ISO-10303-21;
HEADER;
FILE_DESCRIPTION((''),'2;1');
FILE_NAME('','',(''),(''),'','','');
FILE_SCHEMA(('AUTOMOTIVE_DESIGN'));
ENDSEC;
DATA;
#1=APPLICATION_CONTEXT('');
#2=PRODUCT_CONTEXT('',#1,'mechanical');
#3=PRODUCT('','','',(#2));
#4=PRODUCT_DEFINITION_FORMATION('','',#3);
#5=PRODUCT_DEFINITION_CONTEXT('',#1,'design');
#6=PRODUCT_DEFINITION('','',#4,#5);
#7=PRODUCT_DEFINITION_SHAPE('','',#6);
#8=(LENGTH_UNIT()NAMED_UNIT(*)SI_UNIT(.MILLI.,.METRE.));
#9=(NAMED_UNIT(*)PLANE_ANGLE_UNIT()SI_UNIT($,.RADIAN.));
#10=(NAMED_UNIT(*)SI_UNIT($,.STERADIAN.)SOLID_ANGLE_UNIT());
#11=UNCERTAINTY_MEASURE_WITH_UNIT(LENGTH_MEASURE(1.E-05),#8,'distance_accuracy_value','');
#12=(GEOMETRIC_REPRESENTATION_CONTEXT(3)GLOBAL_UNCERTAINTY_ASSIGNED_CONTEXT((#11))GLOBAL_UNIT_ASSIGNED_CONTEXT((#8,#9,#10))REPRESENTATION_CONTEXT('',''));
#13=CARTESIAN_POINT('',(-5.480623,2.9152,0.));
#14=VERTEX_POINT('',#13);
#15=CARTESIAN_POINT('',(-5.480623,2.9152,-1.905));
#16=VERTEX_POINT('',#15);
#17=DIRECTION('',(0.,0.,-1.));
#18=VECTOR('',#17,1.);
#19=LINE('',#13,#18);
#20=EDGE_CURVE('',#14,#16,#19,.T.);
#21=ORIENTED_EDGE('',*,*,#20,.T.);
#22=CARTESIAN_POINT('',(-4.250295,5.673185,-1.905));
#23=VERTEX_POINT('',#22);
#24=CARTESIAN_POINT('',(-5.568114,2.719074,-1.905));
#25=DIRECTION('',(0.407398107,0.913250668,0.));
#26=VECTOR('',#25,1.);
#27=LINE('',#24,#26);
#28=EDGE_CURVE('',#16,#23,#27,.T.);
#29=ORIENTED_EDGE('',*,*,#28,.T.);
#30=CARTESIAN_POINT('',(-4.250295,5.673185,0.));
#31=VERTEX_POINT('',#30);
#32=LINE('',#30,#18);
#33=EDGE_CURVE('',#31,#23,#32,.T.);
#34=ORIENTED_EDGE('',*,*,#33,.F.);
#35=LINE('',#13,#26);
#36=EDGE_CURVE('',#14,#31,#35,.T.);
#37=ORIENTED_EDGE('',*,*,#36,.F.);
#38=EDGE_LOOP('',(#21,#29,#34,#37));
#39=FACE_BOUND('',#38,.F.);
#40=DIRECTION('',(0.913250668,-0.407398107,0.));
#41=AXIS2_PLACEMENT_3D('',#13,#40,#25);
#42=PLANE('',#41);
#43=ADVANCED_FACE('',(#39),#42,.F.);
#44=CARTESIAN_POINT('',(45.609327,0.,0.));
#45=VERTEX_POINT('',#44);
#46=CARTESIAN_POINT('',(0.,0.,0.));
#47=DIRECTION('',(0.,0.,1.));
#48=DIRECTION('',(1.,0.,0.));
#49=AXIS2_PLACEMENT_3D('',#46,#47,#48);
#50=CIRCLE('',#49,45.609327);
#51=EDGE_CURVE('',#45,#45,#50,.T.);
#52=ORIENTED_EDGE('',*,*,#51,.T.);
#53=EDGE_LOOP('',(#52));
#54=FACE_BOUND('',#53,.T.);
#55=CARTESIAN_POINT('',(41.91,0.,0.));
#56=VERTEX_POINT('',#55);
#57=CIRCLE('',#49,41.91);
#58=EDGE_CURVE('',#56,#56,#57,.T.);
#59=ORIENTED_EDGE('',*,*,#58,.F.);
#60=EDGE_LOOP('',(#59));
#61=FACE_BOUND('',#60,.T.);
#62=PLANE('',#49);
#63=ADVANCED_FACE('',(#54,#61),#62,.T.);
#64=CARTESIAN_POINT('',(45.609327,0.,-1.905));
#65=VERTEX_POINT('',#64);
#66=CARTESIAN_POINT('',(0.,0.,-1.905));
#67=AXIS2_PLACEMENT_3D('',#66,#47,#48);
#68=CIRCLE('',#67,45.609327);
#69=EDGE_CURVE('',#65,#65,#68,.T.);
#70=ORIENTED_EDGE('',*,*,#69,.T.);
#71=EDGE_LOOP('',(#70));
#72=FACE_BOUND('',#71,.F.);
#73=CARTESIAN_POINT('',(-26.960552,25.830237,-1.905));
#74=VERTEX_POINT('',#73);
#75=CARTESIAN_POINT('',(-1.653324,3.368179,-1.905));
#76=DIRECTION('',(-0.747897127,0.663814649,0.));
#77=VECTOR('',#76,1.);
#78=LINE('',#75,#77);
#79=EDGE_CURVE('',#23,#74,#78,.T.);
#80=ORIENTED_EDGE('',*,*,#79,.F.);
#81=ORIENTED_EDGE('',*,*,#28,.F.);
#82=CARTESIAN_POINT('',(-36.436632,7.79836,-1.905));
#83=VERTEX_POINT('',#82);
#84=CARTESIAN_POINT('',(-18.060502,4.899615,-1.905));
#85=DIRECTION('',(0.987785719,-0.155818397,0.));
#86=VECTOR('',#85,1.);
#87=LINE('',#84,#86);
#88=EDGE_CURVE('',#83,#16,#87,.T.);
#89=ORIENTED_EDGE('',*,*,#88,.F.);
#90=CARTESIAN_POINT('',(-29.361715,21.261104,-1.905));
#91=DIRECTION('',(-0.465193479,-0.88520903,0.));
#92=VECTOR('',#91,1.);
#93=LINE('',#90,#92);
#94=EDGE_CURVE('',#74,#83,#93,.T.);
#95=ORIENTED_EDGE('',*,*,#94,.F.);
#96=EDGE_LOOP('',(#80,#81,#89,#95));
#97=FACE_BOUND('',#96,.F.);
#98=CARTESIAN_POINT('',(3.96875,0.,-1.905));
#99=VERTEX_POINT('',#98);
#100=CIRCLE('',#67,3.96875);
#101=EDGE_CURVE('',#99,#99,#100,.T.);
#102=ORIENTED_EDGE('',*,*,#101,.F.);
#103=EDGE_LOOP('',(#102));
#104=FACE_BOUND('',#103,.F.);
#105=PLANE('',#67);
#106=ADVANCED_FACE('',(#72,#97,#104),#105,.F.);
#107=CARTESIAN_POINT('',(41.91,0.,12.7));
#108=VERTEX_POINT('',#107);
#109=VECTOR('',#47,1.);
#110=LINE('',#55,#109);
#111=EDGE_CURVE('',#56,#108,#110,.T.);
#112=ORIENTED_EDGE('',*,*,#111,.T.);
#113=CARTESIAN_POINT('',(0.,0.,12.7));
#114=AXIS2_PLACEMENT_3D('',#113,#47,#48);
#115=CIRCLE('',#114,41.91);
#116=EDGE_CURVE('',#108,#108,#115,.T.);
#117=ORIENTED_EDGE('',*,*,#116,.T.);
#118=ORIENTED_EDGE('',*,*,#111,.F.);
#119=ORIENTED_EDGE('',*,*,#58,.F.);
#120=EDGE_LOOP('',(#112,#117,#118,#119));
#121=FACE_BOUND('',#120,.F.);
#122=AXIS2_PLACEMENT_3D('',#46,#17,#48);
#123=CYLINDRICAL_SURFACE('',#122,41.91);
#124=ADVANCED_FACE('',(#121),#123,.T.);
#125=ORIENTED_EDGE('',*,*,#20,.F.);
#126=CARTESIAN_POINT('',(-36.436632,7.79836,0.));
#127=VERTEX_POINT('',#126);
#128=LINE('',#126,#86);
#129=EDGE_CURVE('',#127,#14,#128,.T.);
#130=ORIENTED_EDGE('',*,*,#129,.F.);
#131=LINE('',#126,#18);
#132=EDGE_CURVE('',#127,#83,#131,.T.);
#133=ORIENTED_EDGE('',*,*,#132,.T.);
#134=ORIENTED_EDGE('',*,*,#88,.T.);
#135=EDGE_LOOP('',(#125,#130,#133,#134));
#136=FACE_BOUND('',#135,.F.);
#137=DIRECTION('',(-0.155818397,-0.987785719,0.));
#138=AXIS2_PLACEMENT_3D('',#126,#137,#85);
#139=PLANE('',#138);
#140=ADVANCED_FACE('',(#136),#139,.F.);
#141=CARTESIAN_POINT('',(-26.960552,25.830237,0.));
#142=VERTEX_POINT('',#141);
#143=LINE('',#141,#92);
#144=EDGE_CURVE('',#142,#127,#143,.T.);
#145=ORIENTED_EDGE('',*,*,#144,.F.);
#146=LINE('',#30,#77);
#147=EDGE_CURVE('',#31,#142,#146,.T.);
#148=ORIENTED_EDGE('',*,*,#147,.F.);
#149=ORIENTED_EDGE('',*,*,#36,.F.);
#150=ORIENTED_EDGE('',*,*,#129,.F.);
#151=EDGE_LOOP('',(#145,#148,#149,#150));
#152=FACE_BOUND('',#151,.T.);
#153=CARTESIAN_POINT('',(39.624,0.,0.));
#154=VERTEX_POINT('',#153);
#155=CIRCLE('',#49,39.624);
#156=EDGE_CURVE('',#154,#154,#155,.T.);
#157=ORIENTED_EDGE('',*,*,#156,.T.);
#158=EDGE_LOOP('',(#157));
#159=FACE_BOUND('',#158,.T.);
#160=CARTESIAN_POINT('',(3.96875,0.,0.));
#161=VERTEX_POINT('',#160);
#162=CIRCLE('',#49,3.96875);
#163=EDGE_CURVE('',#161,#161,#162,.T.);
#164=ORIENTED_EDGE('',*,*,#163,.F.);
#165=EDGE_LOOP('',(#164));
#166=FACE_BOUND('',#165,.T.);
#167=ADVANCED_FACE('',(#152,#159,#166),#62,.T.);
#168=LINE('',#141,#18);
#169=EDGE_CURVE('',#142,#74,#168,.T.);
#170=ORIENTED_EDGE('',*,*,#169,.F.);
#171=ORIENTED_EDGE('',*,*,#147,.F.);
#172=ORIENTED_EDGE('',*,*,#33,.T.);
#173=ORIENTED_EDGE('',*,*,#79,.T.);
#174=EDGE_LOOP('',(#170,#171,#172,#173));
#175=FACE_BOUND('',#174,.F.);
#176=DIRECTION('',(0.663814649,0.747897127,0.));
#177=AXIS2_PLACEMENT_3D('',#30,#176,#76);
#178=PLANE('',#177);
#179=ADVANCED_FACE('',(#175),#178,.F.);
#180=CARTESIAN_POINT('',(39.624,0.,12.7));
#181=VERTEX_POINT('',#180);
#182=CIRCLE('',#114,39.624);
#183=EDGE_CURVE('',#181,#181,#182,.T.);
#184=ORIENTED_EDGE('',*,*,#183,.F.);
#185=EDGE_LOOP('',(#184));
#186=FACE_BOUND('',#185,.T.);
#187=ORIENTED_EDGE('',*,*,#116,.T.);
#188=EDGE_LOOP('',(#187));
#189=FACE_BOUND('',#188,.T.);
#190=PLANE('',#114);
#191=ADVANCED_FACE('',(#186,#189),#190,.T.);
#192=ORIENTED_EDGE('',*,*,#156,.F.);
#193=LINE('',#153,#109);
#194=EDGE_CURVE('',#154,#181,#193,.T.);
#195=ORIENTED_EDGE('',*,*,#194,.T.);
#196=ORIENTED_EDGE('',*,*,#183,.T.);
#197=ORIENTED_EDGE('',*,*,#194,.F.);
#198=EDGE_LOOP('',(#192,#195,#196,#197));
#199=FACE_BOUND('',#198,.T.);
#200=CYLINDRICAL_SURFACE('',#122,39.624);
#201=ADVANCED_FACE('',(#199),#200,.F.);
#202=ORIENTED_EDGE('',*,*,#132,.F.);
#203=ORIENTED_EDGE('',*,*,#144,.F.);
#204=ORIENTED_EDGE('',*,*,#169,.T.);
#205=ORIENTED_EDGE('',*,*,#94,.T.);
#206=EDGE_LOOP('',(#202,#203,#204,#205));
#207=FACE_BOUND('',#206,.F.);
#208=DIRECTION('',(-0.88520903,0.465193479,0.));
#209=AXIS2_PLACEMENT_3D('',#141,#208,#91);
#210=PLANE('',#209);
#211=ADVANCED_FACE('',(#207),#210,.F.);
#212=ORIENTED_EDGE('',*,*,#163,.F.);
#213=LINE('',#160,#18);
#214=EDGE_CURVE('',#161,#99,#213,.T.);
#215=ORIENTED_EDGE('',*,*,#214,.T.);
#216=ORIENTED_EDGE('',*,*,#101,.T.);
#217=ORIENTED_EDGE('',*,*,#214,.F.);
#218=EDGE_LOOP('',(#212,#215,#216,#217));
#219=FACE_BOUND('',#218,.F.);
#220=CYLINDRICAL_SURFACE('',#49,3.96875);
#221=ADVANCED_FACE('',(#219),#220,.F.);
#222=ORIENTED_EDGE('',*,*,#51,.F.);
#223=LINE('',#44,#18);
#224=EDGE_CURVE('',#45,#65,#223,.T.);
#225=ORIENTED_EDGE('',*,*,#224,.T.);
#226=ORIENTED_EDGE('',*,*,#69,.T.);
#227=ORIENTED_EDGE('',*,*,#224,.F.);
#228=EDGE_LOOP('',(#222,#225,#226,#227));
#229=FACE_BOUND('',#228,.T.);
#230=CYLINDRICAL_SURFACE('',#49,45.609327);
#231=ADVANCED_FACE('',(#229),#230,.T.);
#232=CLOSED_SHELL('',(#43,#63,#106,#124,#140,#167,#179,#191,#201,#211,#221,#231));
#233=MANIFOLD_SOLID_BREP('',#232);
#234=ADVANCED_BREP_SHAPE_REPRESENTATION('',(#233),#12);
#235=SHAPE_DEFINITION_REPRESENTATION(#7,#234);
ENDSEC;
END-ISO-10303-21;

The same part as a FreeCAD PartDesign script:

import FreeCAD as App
import Part
import Sketcher
from FreeCAD import Vector
Q = App.Units.Quantity


def add_polygon(sketch, points):
    """Adds a closed chain of lines whose ends are joined by coincident constraints."""
    first, n = sketch.GeometryCount, len(points)
    for a, b in zip(points, points[1:] + points[:1]):
        sketch.addGeometry(Part.LineSegment(App.Vector(*a, 0), App.Vector(*b, 0)), False)
    for i in range(n):
        sketch.addConstraint(Sketcher.Constraint("Coincident", first + i, 2, first + (i + 1) % n, 1))

doc = App.newDocument("Part")
body = doc.addObject("PartDesign::Body", "Body")

# Sketch on XY plane
sketch1 = body.newObject("Sketcher::SketchObject", "Sketch")
sketch1.AttachmentSupport = (doc.getObject("XY_Plane"), [""])
sketch1.MapMode = "FlatFace"
sketch1.addGeometry(Part.Circle(Vector(0, 0, 0), Vector(0, 0, 1), 42), False)
sketch1.addGeometry(Part.Circle(Vector(0, 0, 0), Vector(0, 0, 1), 40), False)
sketch1.addConstraint(Sketcher.Constraint("Coincident", 0, 3, -1, 1))
sketch1.addConstraint(Sketcher.Constraint("Coincident", 1, 3, -1, 1))
sketch1.addConstraint(Sketcher.Constraint("Diameter", 0, Q("3.3 in")))
sketch1.addConstraint(Sketcher.Constraint("Diameter", 1, Q("3.12 in")))
pad1 = body.newObject("PartDesign::Pad", "Pad")
pad1.Profile = sketch1
pad1.Length = Q("0.5 in")

# Sketch on XY plane
sketch2 = body.newObject("Sketcher::SketchObject", "Sketch001")
sketch2.AttachmentSupport = (doc.getObject("XY_Plane"), [""])
sketch2.MapMode = "FlatFace"
sketch2.addGeometry(Part.Circle(Vector(0, 0, 0), Vector(0, 0, 1), 46), False)
sketch2.addConstraint(Sketcher.Constraint("Coincident", 0, 3, -1, 1))
sketch2.addConstraint(Sketcher.Constraint("Diameter", 0, 91.218654))
pad2 = body.newObject("PartDesign::Pad", "Pad001")
pad2.Profile = sketch2
pad2.Length = Q("0.075 in")
pad2.Reversed = True

# Sketch on XY plane
sketch3 = body.newObject("Sketcher::SketchObject", "Sketch002")
sketch3.AttachmentSupport = (doc.getObject("XY_Plane"), [""])
sketch3.MapMode = "FlatFace"
sketch3.addGeometry(Part.Circle(Vector(0, 0, 0), Vector(0, 0, 1), 4), False)
sketch3.addConstraint(Sketcher.Constraint("Coincident", 0, 3, -1, 1))
sketch3.addConstraint(Sketcher.Constraint("Diameter", 0, Q("0.3125 in")))
pocket1 = body.newObject("PartDesign::Pocket", "Pocket")
pocket1.Profile = sketch3
pocket1.Length = Q("1 in")

# Sketch on XY plane
sketch4 = body.newObject("Sketcher::SketchObject", "Sketch003")
sketch4.AttachmentSupport = (doc.getObject("XY_Plane"), [""])
sketch4.MapMode = "FlatFace"
add_polygon(sketch4, [(-5.5, 2.9), (-4.3, 5.7), (-27, 25.8), (-36.4, 7.8)])  # lines 0-3
sketch4.addConstraint(Sketcher.Constraint("DistanceY", -1, 1, 3, 2, 2.9152))
sketch4.addConstraint(Sketcher.Constraint("Distance", 2, 20.370191))
sketch4.addConstraint(Sketcher.Constraint("Distance", 3, 31.33879))
sketch4.addConstraint(Sketcher.Constraint("DistanceX", 1, 2, -1, 1, 26.960552))
sketch4.addConstraint(Sketcher.Constraint("DistanceY", -1, 1, 2, 2, 7.79836))
sketch4.addConstraint(Sketcher.Constraint("DistanceY", 0, 2, 1, 2, 20.157052))
sketch4.addConstraint(Sketcher.Constraint("DistanceX", 2, 2, 1, 2, 9.47608))
sketch4.addConstraint(Sketcher.Constraint("Distance", 0, 3.019965))
pocket2 = body.newObject("PartDesign::Pocket", "Pocket001")
pocket2.Profile = sketch4
pocket2.Length = Q("0.21 in")

doc.recompute()
